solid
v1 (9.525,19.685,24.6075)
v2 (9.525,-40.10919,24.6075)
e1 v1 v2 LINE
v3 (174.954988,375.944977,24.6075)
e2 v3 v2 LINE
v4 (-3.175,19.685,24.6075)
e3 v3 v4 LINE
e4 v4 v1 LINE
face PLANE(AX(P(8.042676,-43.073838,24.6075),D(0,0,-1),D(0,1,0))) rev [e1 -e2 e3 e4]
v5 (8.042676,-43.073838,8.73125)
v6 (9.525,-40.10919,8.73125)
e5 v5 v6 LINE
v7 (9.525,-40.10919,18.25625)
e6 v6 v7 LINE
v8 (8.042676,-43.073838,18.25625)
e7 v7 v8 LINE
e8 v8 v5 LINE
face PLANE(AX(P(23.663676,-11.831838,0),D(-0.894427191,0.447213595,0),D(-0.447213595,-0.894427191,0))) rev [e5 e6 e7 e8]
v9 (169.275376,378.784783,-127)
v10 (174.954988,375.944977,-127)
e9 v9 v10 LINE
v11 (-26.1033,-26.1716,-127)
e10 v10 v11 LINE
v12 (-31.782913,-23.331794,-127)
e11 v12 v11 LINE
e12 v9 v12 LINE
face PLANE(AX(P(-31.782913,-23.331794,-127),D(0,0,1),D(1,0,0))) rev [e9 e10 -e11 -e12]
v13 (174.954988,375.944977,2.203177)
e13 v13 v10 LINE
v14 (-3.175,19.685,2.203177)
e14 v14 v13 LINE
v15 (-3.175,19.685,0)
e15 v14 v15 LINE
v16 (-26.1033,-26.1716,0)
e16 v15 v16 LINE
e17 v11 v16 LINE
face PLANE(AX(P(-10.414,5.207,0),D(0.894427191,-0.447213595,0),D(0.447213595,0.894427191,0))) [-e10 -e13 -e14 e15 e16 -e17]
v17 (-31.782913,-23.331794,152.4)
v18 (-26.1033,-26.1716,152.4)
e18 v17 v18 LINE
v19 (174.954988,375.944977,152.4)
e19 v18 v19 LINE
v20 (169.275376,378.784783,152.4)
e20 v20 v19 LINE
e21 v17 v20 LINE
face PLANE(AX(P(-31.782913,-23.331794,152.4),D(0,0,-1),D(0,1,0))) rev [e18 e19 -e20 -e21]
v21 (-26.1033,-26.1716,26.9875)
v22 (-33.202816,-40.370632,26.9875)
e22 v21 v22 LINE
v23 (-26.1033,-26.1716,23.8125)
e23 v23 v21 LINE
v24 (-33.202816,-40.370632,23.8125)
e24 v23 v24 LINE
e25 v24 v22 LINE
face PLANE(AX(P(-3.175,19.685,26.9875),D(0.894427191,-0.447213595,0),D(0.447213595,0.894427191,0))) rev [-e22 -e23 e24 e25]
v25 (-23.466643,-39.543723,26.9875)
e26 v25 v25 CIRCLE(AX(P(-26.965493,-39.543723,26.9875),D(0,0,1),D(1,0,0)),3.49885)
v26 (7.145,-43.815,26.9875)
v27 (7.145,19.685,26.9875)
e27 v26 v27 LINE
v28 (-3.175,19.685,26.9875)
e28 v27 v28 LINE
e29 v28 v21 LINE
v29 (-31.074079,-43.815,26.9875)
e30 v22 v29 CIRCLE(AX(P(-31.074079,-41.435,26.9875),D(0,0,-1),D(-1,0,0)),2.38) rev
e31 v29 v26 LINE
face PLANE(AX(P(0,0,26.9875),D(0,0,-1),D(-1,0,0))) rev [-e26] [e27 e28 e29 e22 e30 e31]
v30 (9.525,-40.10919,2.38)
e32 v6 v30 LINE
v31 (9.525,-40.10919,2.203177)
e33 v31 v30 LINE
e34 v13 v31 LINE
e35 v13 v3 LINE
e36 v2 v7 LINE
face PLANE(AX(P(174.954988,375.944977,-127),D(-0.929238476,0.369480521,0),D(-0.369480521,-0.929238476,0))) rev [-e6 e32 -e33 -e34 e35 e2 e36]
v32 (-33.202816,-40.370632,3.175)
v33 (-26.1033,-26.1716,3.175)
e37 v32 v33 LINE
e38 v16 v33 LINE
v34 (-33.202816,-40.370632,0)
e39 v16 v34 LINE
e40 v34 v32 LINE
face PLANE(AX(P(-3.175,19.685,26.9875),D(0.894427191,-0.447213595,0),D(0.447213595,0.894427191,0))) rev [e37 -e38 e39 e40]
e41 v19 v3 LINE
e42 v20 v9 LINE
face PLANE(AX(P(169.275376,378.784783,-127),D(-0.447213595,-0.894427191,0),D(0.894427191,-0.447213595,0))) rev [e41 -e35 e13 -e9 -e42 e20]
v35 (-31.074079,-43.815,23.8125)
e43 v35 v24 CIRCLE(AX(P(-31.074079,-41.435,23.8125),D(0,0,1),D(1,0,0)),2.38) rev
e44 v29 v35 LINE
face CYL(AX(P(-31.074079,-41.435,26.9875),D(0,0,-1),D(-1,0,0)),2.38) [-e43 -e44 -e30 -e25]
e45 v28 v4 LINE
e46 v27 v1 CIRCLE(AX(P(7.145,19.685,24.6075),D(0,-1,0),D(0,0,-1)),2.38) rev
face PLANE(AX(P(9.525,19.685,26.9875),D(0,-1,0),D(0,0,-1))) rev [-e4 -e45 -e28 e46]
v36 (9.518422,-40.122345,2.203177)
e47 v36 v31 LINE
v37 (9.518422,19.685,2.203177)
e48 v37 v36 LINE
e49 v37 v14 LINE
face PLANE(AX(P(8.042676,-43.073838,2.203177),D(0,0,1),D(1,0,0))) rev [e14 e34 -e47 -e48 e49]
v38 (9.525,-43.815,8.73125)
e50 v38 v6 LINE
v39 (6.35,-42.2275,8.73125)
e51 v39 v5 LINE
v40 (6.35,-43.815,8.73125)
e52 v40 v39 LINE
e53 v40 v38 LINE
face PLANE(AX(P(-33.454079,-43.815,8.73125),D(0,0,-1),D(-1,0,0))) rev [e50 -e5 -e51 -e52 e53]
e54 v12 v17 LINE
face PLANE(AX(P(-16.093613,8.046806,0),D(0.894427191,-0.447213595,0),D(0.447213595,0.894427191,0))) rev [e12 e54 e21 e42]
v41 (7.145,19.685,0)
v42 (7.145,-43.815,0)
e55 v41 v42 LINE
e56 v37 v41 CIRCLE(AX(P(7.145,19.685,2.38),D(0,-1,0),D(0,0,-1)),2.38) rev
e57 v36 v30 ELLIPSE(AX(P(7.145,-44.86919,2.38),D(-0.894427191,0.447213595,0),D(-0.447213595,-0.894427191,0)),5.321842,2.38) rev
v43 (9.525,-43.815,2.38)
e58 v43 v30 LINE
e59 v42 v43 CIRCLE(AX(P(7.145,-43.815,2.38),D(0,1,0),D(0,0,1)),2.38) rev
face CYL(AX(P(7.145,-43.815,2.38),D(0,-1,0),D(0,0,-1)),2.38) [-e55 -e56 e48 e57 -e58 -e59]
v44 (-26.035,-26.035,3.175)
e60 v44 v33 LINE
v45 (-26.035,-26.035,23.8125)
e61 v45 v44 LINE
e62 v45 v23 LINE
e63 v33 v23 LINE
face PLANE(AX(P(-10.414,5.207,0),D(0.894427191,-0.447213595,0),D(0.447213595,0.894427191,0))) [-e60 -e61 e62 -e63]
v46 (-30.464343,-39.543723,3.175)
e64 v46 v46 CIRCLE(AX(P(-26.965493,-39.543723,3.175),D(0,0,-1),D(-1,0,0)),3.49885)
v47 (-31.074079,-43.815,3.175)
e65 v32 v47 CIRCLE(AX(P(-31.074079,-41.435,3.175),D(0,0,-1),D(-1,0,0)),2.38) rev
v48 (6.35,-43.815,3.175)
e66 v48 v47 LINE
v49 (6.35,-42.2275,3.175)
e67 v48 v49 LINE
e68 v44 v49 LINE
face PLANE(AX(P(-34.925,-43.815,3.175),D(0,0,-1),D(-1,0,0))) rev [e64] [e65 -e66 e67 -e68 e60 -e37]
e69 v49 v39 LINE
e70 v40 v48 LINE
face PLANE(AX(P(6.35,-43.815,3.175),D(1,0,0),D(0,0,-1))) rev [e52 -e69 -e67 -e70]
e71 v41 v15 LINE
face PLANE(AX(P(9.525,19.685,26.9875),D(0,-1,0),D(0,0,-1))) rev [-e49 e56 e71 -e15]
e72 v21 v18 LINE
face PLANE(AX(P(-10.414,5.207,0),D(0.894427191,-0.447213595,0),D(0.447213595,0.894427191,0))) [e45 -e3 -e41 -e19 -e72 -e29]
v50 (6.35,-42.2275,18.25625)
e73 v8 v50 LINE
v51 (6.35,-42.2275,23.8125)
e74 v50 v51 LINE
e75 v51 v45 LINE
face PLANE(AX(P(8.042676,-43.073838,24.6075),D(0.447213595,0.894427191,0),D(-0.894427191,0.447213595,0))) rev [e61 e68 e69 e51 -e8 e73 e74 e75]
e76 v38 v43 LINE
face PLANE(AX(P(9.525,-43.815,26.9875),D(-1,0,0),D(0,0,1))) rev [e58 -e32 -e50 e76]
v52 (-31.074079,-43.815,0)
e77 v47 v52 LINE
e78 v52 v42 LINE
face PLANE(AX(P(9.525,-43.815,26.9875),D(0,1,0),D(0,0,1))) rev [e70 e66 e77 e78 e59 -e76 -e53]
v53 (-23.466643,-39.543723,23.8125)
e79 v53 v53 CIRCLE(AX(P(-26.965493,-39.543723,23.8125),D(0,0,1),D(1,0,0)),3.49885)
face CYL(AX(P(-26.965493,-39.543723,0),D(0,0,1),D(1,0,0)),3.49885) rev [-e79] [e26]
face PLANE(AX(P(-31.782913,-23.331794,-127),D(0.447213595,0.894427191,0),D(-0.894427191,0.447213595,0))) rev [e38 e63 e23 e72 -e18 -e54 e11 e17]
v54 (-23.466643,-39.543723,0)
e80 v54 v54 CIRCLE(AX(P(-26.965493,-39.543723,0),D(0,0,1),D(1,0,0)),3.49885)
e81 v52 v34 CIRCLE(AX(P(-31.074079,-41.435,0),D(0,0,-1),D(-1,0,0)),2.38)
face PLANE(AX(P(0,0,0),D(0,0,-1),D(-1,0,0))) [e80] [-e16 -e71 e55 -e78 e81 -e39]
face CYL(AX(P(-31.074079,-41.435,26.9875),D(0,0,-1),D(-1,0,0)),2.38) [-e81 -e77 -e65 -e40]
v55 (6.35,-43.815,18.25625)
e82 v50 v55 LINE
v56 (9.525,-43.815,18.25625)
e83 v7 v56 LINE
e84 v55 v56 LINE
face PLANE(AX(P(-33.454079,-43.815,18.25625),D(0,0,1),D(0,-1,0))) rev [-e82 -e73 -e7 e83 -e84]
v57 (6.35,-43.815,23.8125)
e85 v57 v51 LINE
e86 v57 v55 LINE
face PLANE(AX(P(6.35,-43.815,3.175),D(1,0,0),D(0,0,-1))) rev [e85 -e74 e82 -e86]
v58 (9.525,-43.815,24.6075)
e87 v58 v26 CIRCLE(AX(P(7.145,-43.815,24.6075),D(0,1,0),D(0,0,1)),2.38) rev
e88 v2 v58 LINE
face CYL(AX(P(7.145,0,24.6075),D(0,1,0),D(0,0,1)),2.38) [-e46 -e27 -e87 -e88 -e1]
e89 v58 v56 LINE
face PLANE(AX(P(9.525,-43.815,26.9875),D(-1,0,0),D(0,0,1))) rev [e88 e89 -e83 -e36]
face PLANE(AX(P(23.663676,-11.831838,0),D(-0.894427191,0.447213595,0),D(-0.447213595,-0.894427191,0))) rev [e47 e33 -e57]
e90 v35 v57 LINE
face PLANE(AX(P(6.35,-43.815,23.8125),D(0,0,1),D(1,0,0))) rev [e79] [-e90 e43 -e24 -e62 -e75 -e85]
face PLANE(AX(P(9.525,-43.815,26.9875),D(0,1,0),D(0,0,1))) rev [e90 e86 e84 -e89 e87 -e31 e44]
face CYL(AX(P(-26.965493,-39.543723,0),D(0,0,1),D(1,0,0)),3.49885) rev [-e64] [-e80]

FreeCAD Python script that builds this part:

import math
import FreeCAD as App
import Part
import Sketcher
Q = App.Units.Quantity


def edges_at(feature, points):
    """Names of the edges that pass closest to the given points."""
    edges = feature.Shape.Edges
    near = lambda p: min(range(len(edges)), key=lambda i: edges[i].distToShape(Part.Vertex(*p))[0])
    return sorted({f"Edge{near(p) + 1}" for p in points})


def add_polygon(sketch, points):
    """Adds a closed chain of lines whose ends are joined by coincident constraints."""
    first, n = sketch.GeometryCount, len(points)
    for a, b in zip(points, points[1:] + points[:1]):
        sketch.addGeometry(Part.LineSegment(App.Vector(*a, 0), App.Vector(*b, 0)), False)
    for i in range(n):
        sketch.addConstraint(Sketcher.Constraint("Coincident", first + i, 2, first + (i + 1) % n, 1))

doc = App.newDocument("Part")
body = doc.addObject("PartDesign::Body", "Body")

# Sketch on XY plane
sketch1 = doc.addObject("Sketcher::SketchObject", "Sketch")
body.addObject(sketch1)
sketch1.AttachmentSupport = (doc.XY_Plane, [""])
sketch1.MapMode = "FlatFace"
add_polygon(sketch1, [(-3, 20), (-35, -44), (10, -44), (10, 20)])  # lines 0-3
sketch1.addConstraint(Sketcher.Constraint("Horizontal", 1))
sketch1.addConstraint(Sketcher.Constraint("Vertical", 2))
sketch1.addConstraint(Sketcher.Constraint("Horizontal", 3))
sketch1.addConstraint(Sketcher.Constraint("DistanceX", 3, 2, 3, 1, Q("0.5 in")))
sketch1.addConstraint(Sketcher.Constraint("DistanceY", 2, 1, 2, 2, Q("2.5 in")))
sketch1.addConstraint(Sketcher.Constraint("DistanceX", 1, 1, 1, 2, Q("1.75 in")))
sketch1.addConstraint(Sketcher.Constraint("DistanceX", 0, 2, -1, 1, Q("1.375 in")))
sketch1.addConstraint(Sketcher.Constraint("DistanceY", 0, 2, -1, 1, Q("1.725 in")))
pad1 = doc.addObject("PartDesign::Pad", "Pad")
body.addObject(pad1)
pad1.Profile = sketch1
pad1.Length = Q("1.0625 in")

# Sketch on XZ plane
sketch2 = doc.addObject("Sketcher::SketchObject", "Sketch001")
body.addObject(sketch2)
sketch2.AttachmentSupport = (doc.XZ_Plane, [""])
sketch2.MapMode = "FlatFace"
sketch2.AttachmentOffset = App.Placement(App.Vector(0, 0, -0.775 * 25.4), App.Rotation())
add_polygon(sketch2, [(-35, 3), (-35, 24), (6, 24), (6, 3)])  # lines 0-3
sketch2.addConstraint(Sketcher.Constraint("Vertical", 0))
sketch2.addConstraint(Sketcher.Constraint("Horizontal", 1))
sketch2.addConstraint(Sketcher.Constraint("Vertical", 2))
sketch2.addConstraint(Sketcher.Constraint("Horizontal", 3))
sketch2.addConstraint(Sketcher.Constraint("DistanceX", 1, 1, 1, 2, Q("1.625 in")))
sketch2.addConstraint(Sketcher.Constraint("DistanceY", 0, 1, 0, 2, Q("0.8125 in")))
sketch2.addConstraint(Sketcher.Constraint("DistanceX", -1, 1, 1, 2, Q("0.25 in")))
sketch2.addConstraint(Sketcher.Constraint("DistanceY", -1, 1, 0, 2, Q("0.9375 in")))
pocket1 = doc.addObject("PartDesign::Pocket", "Pocket")
body.addObject(pocket1)
pocket1.Profile = sketch2
pocket1.Type = "ThroughAll"
pocket1.Reversed = True

# Sketch on XY plane
sketch3 = doc.addObject("Sketcher::SketchObject", "Sketch002")
body.addObject(sketch3)
sketch3.AttachmentSupport = (doc.XY_Plane, [""])
sketch3.MapMode = "FlatFace"
sketch3.AttachmentOffset = App.Placement(App.Vector(0, 0, 1.0625 * 25.4), App.Rotation())
sketch3.addGeometry(Part.Circle(App.Vector(-27, -39.5, 0), App.Vector(0, 0, 1), 3.5), False)
sketch3.addConstraint(Sketcher.Constraint("Diameter", 0, Q("0.2755 in")))
sketch3.addConstraint(Sketcher.Constraint("DistanceX", 0, 3, -1, 1, 26.965493))
sketch3.addConstraint(Sketcher.Constraint("DistanceY", 0, 3, -1, 1, 39.543723))
pocket2 = doc.addObject("PartDesign::Pocket", "Pocket001")
body.addObject(pocket2)
pocket2.Profile = sketch3
pocket2.Type = "ThroughAll"
doc.recompute()

fillet = doc.addObject("PartDesign::Fillet", "Fillet")
body.addObject(fillet)
fillet.Base = (pocket2, edges_at(pocket2, [(9.525, -12.065, 26.988), (9.525, -12.065, 0)]))
fillet.Radius = 2.38
doc.recompute()

fillet2 = doc.addObject("PartDesign::Fillet", "Fillet001")
body.addObject(fillet2)
fillet2.Base = (fillet, edges_at(fillet, [(-34.925, -43.815, 1.587), (-34.925, -43.815, 25.4)]))
fillet2.Radius = 2.38

# Sketch on YZ plane
sketch4 = doc.addObject("Sketcher::SketchObject", "Sketch003")
body.addObject(sketch4)
sketch4.AttachmentSupport = (doc.YZ_Plane, [""])
sketch4.MapMode = "FlatFace"
sketch4.AttachmentOffset = App.Placement(App.Vector(0, 0, 0.375 * 25.4), App.Rotation())
sketch4.addGeometry(Part.Circle(App.Vector(8.6, 12.5, 0), App.Vector(0, 0, 1), 4), False)
sketch4.addConstraint(Sketcher.Constraint("Diameter", 0, Q("0.3125 in")))
sketch4.addConstraint(Sketcher.Constraint("DistanceX", -1, 1, 0, 3, Q("0.3375 in")))
sketch4.addConstraint(Sketcher.Constraint("DistanceY", -1, 1, 0, 3, 12.488616))
pocket3 = doc.addObject("PartDesign::Pocket", "Pocket002")
body.addObject(pocket3)
pocket3.Profile = sketch4
pocket3.Type = "ThroughAll"

# Sketch on YZ plane
sketch5 = doc.addObject("Sketcher::SketchObject", "Sketch004")
body.addObject(sketch5)
sketch5.AttachmentSupport = (doc.YZ_Plane, [""])
sketch5.MapMode = "FlatFace"
sketch5.AttachmentOffset = App.Placement(App.Vector(0, 0, 0.375 * 25.4), App.Rotation())
sketch5.addGeometry(Part.LineSegment(App.Vector(-43.8, 18.3, 0), App.Vector(-43.8, 8.7, 0)), False)
sketch5.addGeometry(Part.LineSegment(App.Vector(-43.8, 8.7, 0), App.Vector(-32.7, 8.7, 0)), False)
sketch5.addGeometry(Part.ArcOfCircle(Part.Circle(App.Vector(-32.7, 13.5, 0), App.Vector(0, 0, 1), 4.8), math.radians(-90), math.radians(90)), False)
sketch5.addGeometry(Part.LineSegment(App.Vector(-32.7, 18.3, 0), App.Vector(-43.8, 18.3, 0)), False)
sketch5.addConstraint(Sketcher.Constraint("Coincident", 0, 2, 1, 1))
sketch5.addConstraint(Sketcher.Constraint("Tangent", 1, 2, 2, 1))
sketch5.addConstraint(Sketcher.Constraint("Tangent", 2, 2, 3, 1))
sketch5.addConstraint(Sketcher.Constraint("Coincident", 3, 2, 0, 1))
sketch5.addConstraint(Sketcher.Constraint("Vertical", 0))
sketch5.addConstraint(Sketcher.Constraint("Horizontal", 1))
sketch5.addConstraint(Sketcher.Constraint("Horizontal", 3))
sketch5.addConstraint(Sketcher.Constraint("Radius", 2, Q("0.1875 in")))
sketch5.addConstraint(Sketcher.Constraint("DistanceX", 1, 1, 1, 2, Q("0.4375 in")))
sketch5.addConstraint(Sketcher.Constraint("DistanceY", -1, 1, 2, 3, Q("0.53125 in")))
sketch5.addConstraint(Sketcher.Constraint("DistanceX", 0, 2, -1, 1, Q("1.725 in")))
pocket4 = doc.addObject("PartDesign::Pocket", "Pocket003")
body.addObject(pocket4)
pocket4.Profile = sketch5
pocket4.Type = "ThroughAll"

# Sketch on an angled plane
sketch6 = doc.addObject("Sketcher::SketchObject", "Sketch005")
body.addObject(sketch6)
sketch6.Placement = App.Placement(App.Vector(-10.414, 5.207, 0), App.Rotation(App.Vector(0, 0, 1), App.Vector(0.447213595, 0.894427191, 0), App.Vector(-0.894427191, 0.447213595, 0), "ZXY"))
add_polygon(sketch6, [(-127, 414), (-127, -35), (152, -35), (152, 414)])  # lines 0-3
sketch6.addConstraint(Sketcher.Constraint("Vertical", 0))
sketch6.addConstraint(Sketcher.Constraint("Horizontal", 1))
sketch6.addConstraint(Sketcher.Constraint("Vertical", 2))
sketch6.addConstraint(Sketcher.Constraint("Horizontal", 3))
sketch6.addConstraint(Sketcher.Constraint("DistanceX", 1, 1, 1, 2, Q("11 in")))
sketch6.addConstraint(Sketcher.Constraint("DistanceY", 0, 2, 0, 1, Q("17.7 in")))
sketch6.addConstraint(Sketcher.Constraint("DistanceX", 0, 2, -1, 1, Q("5 in")))
sketch6.addConstraint(Sketcher.Constraint("DistanceY", 0, 2, -1, 1, 35.082341))
pad2 = doc.addObject("PartDesign::Pad", "Pad001")
body.addObject(pad2)
pad2.Profile = sketch6
pad2.Length = Q("0.25 in")

# Sketch on an angled plane
sketch7 = doc.addObject("Sketcher::SketchObject", "Sketch006")
body.addObject(sketch7)
sketch7.Placement = App.Placement(App.Vector(-10.414, 5.207, 0), App.Rotation(App.Vector(0, 0, -1), App.Vector(0.447213595, 0.894427191, 0), App.Vector(0.894427191, -0.447213595, 0), "ZXY"))
add_polygon(sketch7, [(-25, 414), (-25, -35), (-2, -35), (-2, 414)])  # lines 0-3
sketch7.addConstraint(Sketcher.Constraint("Vertical", 0))
sketch7.addConstraint(Sketcher.Constraint("Horizontal", 1))
sketch7.addConstraint(Sketcher.Constraint("Vertical", 2))
sketch7.addConstraint(Sketcher.Constraint("Horizontal", 3))
sketch7.addConstraint(Sketcher.Constraint("DistanceX", 0, 2, -1, 1, 24.6075))
sketch7.addConstraint(Sketcher.Constraint("DistanceX", 1, 1, 1, 2, 22.404323))
sketch7.addConstraint(Sketcher.Constraint("DistanceY", 0, 2, 0, 1, 449.427276))
sketch7.addConstraint(Sketcher.Constraint("DistanceY", -1, 1, 2, 2, 414.497659))
pad3 = doc.addObject("PartDesign::Pad", "Pad002")
body.addObject(pad3)
pad3.Profile = sketch7
pad3.Length = Q("1.5 in")

# Sketch on XY plane
sketch8 = doc.addObject("Sketcher::SketchObject", "Sketch007")
body.addObject(sketch8)
sketch8.AttachmentSupport = (doc.XY_Plane, [""])
sketch8.MapMode = "FlatFace"
sketch8.AttachmentOffset = App.Placement(App.Vector(0, 0, 24.6075), App.Rotation())
add_polygon(sketch8, [(175, 376), (10, -40), (209, 359)])  # lines 0-2
sketch8.addConstraint(Sketcher.Constraint("Perpendicular", 1, 2))
sketch8.addConstraint(Sketcher.Constraint("Distance", 2, Q("1.5 in")))
sketch8.addConstraint(Sketcher.Constraint("DistanceX", -1, 1, 0, 2, Q("0.375 in")))
sketch8.addConstraint(Sketcher.Constraint("Distance", 1, 446.112699))
sketch8.addConstraint(Sketcher.Constraint("DistanceY", 0, 2, -1, 1, 40.10919))
sketch8.addConstraint(Sketcher.Constraint("DistanceY", -1, 1, 1, 2, 358.906139))
pocket5 = doc.addObject("PartDesign::Pocket", "Pocket004")
body.addObject(pocket5)
pocket5.Profile = sketch8
pocket5.Type = "ThroughAll"

doc.recompute()
